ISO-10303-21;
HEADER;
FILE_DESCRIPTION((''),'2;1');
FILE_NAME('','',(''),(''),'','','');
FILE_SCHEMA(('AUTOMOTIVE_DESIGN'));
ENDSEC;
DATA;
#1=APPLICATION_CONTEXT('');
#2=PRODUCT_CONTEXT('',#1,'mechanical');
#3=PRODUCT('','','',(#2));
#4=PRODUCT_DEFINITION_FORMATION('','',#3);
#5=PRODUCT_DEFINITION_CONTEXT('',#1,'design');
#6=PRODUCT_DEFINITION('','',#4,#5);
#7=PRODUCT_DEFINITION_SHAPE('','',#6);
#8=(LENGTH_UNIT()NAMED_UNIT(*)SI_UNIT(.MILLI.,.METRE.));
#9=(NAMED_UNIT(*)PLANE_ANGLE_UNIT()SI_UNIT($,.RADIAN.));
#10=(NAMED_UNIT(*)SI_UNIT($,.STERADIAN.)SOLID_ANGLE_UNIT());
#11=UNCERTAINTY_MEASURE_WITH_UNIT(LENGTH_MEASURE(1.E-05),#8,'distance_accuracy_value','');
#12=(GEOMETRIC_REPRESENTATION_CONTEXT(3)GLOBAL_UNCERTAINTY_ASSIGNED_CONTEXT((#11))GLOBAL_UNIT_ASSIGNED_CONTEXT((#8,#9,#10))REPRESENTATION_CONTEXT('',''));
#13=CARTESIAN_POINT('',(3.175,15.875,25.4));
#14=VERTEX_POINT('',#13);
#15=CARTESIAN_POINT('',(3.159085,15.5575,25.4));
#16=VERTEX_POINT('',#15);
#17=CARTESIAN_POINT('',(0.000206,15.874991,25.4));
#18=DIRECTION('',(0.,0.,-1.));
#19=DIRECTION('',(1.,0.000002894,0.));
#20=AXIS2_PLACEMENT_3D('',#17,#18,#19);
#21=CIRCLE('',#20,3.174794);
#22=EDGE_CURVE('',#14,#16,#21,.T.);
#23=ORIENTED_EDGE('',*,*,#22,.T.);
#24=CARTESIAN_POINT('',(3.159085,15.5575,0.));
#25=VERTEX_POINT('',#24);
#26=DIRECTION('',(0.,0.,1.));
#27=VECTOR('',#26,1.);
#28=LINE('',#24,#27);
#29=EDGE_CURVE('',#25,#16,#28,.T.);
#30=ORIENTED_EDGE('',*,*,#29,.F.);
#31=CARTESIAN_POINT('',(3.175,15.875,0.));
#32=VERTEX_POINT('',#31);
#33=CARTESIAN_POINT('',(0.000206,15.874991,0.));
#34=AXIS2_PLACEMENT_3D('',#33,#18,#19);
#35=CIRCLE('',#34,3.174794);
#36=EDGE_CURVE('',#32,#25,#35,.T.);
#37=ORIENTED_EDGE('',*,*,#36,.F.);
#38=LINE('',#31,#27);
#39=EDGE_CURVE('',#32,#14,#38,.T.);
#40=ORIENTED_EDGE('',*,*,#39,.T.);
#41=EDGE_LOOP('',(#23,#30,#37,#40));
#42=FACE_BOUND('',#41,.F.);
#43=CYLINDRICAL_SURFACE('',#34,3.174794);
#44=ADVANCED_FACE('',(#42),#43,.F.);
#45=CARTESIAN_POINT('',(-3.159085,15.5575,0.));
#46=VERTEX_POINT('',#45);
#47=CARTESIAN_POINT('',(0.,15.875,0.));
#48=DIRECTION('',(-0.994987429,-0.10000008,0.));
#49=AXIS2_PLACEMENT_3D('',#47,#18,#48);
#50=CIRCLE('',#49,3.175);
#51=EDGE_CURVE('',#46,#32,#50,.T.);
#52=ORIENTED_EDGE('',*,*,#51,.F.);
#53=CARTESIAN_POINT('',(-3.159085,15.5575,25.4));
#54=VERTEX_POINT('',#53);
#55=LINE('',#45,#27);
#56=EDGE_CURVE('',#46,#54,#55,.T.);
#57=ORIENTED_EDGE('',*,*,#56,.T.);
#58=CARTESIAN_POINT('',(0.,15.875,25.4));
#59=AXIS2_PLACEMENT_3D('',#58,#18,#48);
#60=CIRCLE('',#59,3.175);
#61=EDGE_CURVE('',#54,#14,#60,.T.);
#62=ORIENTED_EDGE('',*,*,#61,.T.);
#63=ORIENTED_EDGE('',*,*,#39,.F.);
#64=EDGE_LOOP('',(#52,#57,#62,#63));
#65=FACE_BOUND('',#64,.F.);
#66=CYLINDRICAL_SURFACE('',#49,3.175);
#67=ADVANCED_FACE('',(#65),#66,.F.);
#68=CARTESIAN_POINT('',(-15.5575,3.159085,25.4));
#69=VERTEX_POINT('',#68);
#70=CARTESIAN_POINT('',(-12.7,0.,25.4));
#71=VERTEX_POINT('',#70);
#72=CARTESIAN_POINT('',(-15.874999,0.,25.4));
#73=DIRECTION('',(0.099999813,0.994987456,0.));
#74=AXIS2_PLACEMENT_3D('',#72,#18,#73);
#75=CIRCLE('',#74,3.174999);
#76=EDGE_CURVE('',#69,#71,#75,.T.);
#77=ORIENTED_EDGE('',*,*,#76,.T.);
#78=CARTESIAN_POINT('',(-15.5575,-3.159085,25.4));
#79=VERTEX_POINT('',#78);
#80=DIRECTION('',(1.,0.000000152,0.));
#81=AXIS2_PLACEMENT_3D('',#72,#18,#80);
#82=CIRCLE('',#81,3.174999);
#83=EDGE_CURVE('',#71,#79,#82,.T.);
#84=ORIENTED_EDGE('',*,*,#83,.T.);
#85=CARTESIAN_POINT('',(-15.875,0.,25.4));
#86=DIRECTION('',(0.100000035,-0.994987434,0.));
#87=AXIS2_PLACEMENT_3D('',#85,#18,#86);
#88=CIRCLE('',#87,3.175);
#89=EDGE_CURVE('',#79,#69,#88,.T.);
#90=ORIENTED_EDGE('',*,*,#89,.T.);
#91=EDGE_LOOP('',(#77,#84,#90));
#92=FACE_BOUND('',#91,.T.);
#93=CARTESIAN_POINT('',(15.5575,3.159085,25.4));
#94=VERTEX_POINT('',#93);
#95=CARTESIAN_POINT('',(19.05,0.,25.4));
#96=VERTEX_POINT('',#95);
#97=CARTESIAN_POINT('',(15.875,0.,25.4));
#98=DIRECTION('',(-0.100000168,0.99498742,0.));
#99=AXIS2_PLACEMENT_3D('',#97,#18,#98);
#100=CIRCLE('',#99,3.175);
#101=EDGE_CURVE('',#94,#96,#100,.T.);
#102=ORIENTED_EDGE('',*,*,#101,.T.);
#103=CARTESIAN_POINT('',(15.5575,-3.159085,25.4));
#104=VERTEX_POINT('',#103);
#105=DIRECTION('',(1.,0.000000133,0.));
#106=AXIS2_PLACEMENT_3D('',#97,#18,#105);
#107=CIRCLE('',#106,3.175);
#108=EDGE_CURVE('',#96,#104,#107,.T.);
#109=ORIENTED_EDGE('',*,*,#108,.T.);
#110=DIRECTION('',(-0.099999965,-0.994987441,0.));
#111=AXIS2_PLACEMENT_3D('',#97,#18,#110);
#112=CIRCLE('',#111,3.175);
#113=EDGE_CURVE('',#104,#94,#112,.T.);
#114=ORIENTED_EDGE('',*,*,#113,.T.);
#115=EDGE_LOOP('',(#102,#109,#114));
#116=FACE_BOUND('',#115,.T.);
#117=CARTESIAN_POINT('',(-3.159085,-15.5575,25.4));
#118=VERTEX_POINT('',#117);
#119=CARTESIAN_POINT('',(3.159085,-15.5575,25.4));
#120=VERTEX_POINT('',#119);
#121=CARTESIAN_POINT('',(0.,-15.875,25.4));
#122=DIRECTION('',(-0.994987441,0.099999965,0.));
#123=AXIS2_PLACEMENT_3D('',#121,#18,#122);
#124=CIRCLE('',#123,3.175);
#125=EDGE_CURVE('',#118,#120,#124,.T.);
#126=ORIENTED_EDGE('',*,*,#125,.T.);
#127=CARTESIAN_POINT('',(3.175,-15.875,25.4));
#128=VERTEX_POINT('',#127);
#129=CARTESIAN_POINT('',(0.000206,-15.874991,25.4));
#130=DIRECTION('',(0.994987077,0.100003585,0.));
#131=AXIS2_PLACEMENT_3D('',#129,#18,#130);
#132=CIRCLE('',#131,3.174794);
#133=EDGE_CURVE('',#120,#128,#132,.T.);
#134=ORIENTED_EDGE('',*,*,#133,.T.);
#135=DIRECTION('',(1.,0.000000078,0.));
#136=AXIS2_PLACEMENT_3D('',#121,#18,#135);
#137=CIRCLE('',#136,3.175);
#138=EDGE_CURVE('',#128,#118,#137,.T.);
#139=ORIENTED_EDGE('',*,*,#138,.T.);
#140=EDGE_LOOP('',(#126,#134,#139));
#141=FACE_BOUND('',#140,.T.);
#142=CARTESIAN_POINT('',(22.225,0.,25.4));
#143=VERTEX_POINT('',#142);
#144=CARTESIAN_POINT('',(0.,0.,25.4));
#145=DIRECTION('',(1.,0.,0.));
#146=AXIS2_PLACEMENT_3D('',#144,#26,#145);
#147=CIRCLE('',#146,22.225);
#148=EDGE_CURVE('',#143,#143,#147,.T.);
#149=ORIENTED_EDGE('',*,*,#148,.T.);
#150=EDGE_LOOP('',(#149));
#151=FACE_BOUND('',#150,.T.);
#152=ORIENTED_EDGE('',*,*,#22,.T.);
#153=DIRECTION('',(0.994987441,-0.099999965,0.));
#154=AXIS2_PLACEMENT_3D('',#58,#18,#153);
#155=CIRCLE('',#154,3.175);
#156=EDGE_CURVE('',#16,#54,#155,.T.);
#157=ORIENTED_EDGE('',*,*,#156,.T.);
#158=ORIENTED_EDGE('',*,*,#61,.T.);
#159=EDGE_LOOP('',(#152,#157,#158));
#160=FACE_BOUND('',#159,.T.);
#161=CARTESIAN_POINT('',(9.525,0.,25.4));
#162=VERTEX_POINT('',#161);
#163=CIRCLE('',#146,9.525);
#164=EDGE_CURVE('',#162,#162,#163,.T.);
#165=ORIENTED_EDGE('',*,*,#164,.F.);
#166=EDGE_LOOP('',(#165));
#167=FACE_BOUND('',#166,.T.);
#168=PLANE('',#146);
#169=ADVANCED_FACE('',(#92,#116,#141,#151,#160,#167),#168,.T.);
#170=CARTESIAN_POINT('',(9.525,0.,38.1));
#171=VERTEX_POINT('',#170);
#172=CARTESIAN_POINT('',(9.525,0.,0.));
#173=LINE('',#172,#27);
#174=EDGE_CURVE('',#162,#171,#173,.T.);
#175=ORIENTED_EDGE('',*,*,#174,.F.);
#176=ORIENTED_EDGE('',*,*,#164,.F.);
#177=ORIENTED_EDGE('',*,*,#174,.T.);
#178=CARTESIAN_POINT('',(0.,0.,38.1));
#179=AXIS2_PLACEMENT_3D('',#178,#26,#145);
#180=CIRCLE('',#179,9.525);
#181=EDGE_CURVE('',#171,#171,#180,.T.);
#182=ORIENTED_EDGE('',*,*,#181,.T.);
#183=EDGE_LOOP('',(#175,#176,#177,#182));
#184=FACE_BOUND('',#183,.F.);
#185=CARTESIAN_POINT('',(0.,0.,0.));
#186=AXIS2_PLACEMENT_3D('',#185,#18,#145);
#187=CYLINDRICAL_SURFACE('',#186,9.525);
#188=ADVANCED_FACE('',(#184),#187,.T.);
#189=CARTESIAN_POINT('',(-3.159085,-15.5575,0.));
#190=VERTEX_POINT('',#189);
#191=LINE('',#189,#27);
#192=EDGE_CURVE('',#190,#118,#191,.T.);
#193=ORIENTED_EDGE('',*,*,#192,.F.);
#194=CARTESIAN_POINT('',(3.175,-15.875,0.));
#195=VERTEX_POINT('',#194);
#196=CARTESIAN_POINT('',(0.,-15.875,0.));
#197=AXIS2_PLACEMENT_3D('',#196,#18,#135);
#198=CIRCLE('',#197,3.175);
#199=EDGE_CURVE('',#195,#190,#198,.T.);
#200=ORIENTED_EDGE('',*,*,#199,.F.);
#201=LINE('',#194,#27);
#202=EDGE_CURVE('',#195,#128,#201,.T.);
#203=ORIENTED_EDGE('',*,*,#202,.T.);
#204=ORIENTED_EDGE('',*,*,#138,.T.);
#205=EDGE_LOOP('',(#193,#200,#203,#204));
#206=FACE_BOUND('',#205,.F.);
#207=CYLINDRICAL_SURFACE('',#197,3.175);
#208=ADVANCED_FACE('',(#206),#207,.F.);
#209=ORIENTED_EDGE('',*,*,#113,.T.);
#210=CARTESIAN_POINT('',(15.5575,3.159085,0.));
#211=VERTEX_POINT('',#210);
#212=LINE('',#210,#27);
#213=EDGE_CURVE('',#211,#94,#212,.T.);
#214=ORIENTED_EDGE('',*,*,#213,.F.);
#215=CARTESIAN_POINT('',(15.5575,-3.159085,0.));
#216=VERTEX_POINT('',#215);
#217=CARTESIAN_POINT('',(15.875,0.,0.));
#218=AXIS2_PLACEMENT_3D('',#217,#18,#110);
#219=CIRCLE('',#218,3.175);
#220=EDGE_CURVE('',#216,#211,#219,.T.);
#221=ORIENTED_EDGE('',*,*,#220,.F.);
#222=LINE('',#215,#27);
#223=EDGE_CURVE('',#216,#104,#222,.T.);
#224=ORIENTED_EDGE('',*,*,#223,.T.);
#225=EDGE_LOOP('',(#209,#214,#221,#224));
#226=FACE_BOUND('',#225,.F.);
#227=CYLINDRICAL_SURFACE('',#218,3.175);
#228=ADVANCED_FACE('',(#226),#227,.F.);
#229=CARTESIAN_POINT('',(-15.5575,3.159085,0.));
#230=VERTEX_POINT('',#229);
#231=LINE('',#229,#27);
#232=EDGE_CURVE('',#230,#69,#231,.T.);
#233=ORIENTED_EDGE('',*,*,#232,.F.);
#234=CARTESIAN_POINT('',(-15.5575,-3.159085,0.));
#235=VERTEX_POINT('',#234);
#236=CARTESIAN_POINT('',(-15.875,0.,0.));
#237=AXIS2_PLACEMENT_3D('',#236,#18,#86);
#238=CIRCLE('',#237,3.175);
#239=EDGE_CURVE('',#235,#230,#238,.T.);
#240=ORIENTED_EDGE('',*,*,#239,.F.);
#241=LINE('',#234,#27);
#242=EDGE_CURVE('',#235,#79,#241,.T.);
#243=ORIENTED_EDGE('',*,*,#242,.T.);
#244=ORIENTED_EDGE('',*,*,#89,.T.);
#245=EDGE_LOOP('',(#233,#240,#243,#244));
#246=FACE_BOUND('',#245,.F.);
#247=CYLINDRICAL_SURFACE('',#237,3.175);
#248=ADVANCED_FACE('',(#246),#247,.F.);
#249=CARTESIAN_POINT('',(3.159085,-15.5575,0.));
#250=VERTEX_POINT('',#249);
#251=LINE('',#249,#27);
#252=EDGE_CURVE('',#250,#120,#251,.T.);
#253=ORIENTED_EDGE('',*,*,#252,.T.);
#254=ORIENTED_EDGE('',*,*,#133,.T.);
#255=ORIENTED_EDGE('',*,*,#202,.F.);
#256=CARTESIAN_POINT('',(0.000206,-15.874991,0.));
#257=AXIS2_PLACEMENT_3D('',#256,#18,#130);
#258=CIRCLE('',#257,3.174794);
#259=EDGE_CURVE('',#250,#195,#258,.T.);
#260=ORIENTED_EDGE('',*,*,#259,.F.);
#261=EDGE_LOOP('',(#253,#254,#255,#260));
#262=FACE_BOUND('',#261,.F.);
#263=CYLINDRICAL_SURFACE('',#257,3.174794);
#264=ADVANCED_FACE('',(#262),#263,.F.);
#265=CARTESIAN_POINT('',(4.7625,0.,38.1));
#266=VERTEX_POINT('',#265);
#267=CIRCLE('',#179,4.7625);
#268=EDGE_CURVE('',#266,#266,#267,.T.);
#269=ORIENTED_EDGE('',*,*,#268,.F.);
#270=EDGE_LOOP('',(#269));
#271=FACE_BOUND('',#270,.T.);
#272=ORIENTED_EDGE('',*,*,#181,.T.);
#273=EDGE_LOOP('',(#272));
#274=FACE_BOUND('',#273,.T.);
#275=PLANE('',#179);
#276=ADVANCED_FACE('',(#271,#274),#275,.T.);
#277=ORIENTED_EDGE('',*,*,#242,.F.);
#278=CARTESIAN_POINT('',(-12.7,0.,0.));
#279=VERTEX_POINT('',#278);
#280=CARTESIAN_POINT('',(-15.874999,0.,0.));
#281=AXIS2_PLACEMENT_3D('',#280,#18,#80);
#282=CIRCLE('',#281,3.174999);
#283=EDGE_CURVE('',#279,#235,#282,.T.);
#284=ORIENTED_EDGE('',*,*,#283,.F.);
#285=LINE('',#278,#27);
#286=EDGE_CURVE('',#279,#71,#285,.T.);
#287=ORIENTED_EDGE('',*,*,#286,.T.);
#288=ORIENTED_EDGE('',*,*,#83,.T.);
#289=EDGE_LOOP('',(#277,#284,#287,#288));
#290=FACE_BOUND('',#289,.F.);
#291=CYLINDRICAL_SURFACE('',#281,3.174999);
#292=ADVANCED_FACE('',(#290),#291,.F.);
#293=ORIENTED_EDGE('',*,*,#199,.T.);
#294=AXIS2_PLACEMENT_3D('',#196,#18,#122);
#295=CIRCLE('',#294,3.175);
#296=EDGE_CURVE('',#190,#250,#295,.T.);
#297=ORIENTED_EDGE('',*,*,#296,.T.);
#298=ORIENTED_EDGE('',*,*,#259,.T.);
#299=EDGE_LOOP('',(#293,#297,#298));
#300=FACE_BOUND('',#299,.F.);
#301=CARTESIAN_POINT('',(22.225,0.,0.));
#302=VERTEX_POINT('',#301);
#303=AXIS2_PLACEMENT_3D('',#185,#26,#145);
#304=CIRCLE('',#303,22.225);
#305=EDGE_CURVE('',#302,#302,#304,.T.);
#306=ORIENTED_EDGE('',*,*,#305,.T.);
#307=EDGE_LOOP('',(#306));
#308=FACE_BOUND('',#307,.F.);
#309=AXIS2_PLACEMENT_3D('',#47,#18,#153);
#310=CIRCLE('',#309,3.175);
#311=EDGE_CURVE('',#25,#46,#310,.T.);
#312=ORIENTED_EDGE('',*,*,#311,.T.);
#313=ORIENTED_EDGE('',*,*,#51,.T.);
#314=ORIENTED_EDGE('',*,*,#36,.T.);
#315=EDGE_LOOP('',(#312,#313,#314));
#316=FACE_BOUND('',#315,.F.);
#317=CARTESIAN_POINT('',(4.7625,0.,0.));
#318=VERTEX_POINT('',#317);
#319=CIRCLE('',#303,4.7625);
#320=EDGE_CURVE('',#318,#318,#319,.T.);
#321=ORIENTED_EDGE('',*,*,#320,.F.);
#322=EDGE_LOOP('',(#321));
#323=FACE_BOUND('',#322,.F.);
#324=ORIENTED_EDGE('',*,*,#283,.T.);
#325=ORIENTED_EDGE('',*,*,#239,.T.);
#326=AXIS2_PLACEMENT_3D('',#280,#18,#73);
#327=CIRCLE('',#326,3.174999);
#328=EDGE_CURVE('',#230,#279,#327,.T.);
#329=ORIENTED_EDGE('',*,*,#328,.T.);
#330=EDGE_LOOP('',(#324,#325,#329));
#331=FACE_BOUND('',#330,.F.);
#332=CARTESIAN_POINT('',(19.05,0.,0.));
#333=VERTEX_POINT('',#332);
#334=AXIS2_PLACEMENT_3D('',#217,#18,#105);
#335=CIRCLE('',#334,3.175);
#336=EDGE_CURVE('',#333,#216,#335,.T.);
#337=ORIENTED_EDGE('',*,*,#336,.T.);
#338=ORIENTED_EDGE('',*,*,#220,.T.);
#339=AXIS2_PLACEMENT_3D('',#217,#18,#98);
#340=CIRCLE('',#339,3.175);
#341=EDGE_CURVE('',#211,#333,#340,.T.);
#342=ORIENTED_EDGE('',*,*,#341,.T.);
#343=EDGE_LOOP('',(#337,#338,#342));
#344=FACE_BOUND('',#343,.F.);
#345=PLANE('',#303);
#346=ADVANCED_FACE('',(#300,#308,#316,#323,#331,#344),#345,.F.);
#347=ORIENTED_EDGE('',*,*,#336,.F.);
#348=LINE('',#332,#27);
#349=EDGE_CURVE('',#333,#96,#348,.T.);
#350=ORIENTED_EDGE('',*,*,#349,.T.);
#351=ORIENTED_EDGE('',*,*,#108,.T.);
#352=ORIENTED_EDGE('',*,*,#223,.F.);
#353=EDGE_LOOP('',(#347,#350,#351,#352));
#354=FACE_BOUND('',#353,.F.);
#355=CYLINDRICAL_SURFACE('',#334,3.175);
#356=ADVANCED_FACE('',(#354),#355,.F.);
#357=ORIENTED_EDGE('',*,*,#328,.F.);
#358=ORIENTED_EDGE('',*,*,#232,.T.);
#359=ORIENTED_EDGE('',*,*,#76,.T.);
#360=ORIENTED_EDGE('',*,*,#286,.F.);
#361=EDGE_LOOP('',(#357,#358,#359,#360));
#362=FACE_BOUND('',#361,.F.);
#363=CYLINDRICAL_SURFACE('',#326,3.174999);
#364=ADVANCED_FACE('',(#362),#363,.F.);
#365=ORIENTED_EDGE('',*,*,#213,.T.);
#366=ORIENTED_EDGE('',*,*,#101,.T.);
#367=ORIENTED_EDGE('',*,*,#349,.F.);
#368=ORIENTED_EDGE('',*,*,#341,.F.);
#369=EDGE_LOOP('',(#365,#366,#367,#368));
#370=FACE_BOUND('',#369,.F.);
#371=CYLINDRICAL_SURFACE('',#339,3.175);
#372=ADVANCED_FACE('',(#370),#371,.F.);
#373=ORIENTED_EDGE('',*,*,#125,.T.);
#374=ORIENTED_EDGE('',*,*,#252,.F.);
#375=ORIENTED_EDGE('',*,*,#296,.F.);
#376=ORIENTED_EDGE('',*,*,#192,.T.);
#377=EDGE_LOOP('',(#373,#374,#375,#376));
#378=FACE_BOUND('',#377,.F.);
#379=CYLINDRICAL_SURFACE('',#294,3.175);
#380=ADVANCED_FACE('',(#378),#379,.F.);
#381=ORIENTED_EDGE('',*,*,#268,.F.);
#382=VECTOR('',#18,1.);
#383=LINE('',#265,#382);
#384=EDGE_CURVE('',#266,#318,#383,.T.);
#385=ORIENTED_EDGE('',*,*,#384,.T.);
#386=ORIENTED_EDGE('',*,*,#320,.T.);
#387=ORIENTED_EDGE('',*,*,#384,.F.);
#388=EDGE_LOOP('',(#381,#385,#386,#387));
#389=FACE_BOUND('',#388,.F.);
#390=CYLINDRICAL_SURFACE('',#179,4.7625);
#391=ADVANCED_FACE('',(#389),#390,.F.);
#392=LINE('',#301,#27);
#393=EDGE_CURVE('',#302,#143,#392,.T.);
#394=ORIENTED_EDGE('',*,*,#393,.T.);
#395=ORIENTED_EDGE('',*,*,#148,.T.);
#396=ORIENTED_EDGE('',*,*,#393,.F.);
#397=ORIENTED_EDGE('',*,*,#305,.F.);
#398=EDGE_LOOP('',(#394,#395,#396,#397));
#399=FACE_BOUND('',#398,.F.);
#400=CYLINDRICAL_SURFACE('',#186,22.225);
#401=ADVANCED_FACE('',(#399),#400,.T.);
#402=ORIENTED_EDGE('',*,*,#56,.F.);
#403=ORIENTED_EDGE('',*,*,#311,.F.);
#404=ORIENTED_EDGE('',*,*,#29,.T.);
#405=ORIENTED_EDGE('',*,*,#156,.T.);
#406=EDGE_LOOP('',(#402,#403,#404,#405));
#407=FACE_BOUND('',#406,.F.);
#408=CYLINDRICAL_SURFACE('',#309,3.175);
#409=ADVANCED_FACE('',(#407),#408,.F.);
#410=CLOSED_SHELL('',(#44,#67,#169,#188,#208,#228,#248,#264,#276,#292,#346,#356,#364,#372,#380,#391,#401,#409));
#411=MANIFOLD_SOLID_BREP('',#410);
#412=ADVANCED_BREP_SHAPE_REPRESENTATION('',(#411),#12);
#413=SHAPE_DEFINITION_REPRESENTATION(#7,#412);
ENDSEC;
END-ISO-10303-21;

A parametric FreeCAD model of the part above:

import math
import FreeCAD as App
import Part
import Sketcher
Q = App.Units.Quantity

doc = App.newDocument("Part")
params = doc.addObject("Spreadsheet::Sheet", "Params")
for row, (alias, value) in enumerate([
    ("sketch1_diameter", "1.75 in"),
    ("sketch1_diameter2", "0.75 in"),
    ("sketch1_radius", "0.125 in"),
    ("pad1_length", "1 in"),
    ("sketch2_diameter", "0.75 in"),
    ("pad2_length", "1.5 in"),
    ("sketch3_diameter", "0.375 in"),
    ("pocket1_length", "1.5 in"),
], start=1):
    params.set(f"A{row}", alias)
    params.set(f"B{row}", "=" + value)
    params.setAlias(f"B{row}", alias)

body = doc.addObject("PartDesign::Body", "Body")

# Sketch on XY plane
sketch1 = doc.addObject("Sketcher::SketchObject", "Sketch")
body.addObject(sketch1)
sketch1.AttachmentSupport = (doc.XY_Plane, [""])
sketch1.MapMode = "FlatFace"
sketch1.addGeometry([
    Part.Circle(App.Vector(0, 0, 0), App.Vector(0, 0, 1), 22.225),  # 0
    Part.ArcOfCircle(Part.Circle(App.Vector(0, -15.875, 0), App.Vector(0, 0, 1), 3.175), math.radians(174.260825), math.radians(360.000004)),  # 1
    Part.ArcOfCircle(Part.Circle(App.Vector(0, -15.875, 0), App.Vector(0, 0, 1), 3.175), math.radians(5.739168), math.radians(174.260832)),  # 2
    Part.ArcOfCircle(Part.Circle(App.Vector(0.000206, -15.874991, 0), App.Vector(0, 0, 1), 3.174794), math.radians(-0.000166), math.radians(5.739377)),  # 3
    Part.ArcOfCircle(Part.Circle(App.Vector(-15.875, 0, 0), App.Vector(0, 0, 1), 3.175), math.radians(84.260827), math.radians(275.739173)),  # 4
    Part.ArcOfCircle(Part.Circle(App.Vector(-15.874999, 0, 0), App.Vector(0, 0, 1), 3.174999), math.radians(-0.000009), math.radians(84.26084)),  # 5
    Part.ArcOfCircle(Part.Circle(App.Vector(-15.874999, 0, 0), App.Vector(0, 0, 1), 3.174999), math.radians(-84.26084), math.radians(0.000009)),  # 6
    Part.Circle(App.Vector(0, 0, 0), App.Vector(0, 0, 1), 9.525),  # 7
    Part.ArcOfCircle(Part.Circle(App.Vector(15.875, 0, 0), App.Vector(0, 0, 1), 3.175), math.radians(-95.73918), math.radians(0.000008)),  # 8
    Part.ArcOfCircle(Part.Circle(App.Vector(15.875, 0, 0), App.Vector(0, 0, 1), 3.175), math.radians(95.739168), math.radians(264.260832)),  # 9
    Part.ArcOfCircle(Part.Circle(App.Vector(15.875, 0, 0), App.Vector(0, 0, 1), 3.175), math.radians(-0.000008), math.radians(95.73918)),  # 10
    Part.ArcOfCircle(Part.Circle(App.Vector(0.000206, 15.874991, 0), App.Vector(0, 0, 1), 3.174794), math.radians(-5.739377), math.radians(0.000166)),  # 11
    Part.ArcOfCircle(Part.Circle(App.Vector(0, 15.875, 0), App.Vector(0, 0, 1), 3.175), math.radians(-174.260832), math.radians(-5.739168)),  # 12
    Part.ArcOfCircle(Part.Circle(App.Vector(0, 15.875, 0), App.Vector(0, 0, 1), 3.175), math.radians(-0.000004), math.radians(185.739175)),  # 13
], False)
sketch1.addConstraint([
    Sketcher.Constraint("Tangent", 1, 1, 2, 2),
    Sketcher.Constraint("Coincident", 2, 1, 3, 2),
    Sketcher.Constraint("Coincident", 3, 1, 1, 2),
    Sketcher.Constraint("Tangent", 4, 1, 5, 2),
    Sketcher.Constraint("Tangent", 5, 1, 6, 2),
    Sketcher.Constraint("Tangent", 6, 1, 4, 2),
    Sketcher.Constraint("Tangent", 8, 1, 9, 2),
    Sketcher.Constraint("Tangent", 9, 1, 10, 2),
    Sketcher.Constraint("Tangent", 10, 1, 8, 2),
    Sketcher.Constraint("Coincident", 11, 1, 12, 2),
    Sketcher.Constraint("Tangent", 12, 1, 13, 2),
    Sketcher.Constraint("Coincident", 13, 1, 11, 2),
    Sketcher.Constraint("Coincident", 0, 3, -1, 1),
    Sketcher.Constraint("Coincident", 7, 3, -1, 1),
    Sketcher.Constraint("Equal", 1, 2),
    Sketcher.Constraint("Equal", 2, 4),
    Sketcher.Constraint("Equal", 6, 8),
    Sketcher.Constraint("Equal", 3, 11),
    Sketcher.Constraint("Equal", 10, 12),
    Sketcher.Constraint("Equal", 12, 13),
    Sketcher.Constraint("Symmetric", 4, 3, 8, 3, -1, 1),
    Sketcher.Constraint("Symmetric", 1, 3, 12, 3, -1, 1),
    Sketcher.Constraint("Symmetric", 1, 1, 2, 1, -2),
    Sketcher.Constraint("Symmetric", 6, 1, 8, 1, -2),
    Sketcher.Constraint("PointOnObject", 5, 1, -1),
    Sketcher.Constraint("PointOnObject", 10, 1, -1),
    Sketcher.Constraint("Horizontal", 2, 3, 3, 1),
    Sketcher.Constraint("Horizontal", 4, 1, 9, 1),
    Sketcher.Constraint("Horizontal", 11, 1, 12, 1),
    Sketcher.Constraint("Horizontal", 12, 3, 13, 1),
    Sketcher.Constraint("Vertical", 4, 1, 6, 1),
    Sketcher.Constraint("Vertical", 2, 1, 11, 1),
    Sketcher.Constraint("Diameter", 0, Q("1.75 in")),
    Sketcher.Constraint("Diameter", 7, Q("0.75 in")),
    Sketcher.Constraint("Radius", 1, Q("0.125 in")),
    Sketcher.Constraint("DistanceX", 5, 1, -1, 1, Q("0.5 in")),
    Sketcher.Constraint("DistanceY", 1, 3, -1, 1, Q("0.625 in")),
    Sketcher.Constraint("DistanceY", 1, 1, -1, 1, Q("0.6125 in")),
    Sketcher.Constraint("DistanceX", 4, 1, -1, 1, Q("0.6125 in")),
    Sketcher.Constraint("Radius", 3, 3.174794),
])
sketch1.setExpression("Constraints[32]", "Params.sketch1_diameter")
sketch1.setExpression("Constraints[33]", "Params.sketch1_diameter2")
sketch1.setExpression("Constraints[34]", "Params.sketch1_radius")
pad1 = doc.addObject("PartDesign::Pad", "Pad")
body.addObject(pad1)
pad1.Profile = sketch1
pad1.setExpression("Length", "Params.pad1_length")

# Sketch on XY plane
sketch2 = doc.addObject("Sketcher::SketchObject", "Sketch001")
body.addObject(sketch2)
sketch2.AttachmentSupport = (doc.XY_Plane, [""])
sketch2.MapMode = "FlatFace"
sketch2.addGeometry(Part.Circle(App.Vector(0, 0, 0), App.Vector(0, 0, 1), 9.525), False)
sketch2.addConstraint([
    Sketcher.Constraint("Coincident", 0, 3, -1, 1),
    Sketcher.Constraint("Diameter", 0, Q("0.75 in")),
])
sketch2.setExpression("Constraints[1]", "Params.sketch2_diameter")
pad2 = doc.addObject("PartDesign::Pad", "Pad001")
body.addObject(pad2)
pad2.Profile = sketch2
pad2.setExpression("Length", "Params.pad2_length")

# Sketch on XY plane
sketch3 = doc.addObject("Sketcher::SketchObject", "Sketch002")
body.addObject(sketch3)
sketch3.AttachmentSupport = (doc.XY_Plane, [""])
sketch3.MapMode = "FlatFace"
sketch3.AttachmentOffset = App.Placement(App.Vector(0, 0, 1.5 * 25.4), App.Rotation())
sketch3.addGeometry(Part.Circle(App.Vector(0, 0, 0), App.Vector(0, 0, 1), 4.7625), False)
sketch3.addConstraint([
    Sketcher.Constraint("Coincident", 0, 3, -1, 1),
    Sketcher.Constraint("Diameter", 0, Q("0.375 in")),
])
sketch3.setExpression("Constraints[1]", "Params.sketch3_diameter")
pocket1 = doc.addObject("PartDesign::Pocket", "Pocket")
body.addObject(pocket1)
pocket1.Profile = sketch3
pocket1.setExpression("Length", "Params.pocket1_length")

doc.recompute()
